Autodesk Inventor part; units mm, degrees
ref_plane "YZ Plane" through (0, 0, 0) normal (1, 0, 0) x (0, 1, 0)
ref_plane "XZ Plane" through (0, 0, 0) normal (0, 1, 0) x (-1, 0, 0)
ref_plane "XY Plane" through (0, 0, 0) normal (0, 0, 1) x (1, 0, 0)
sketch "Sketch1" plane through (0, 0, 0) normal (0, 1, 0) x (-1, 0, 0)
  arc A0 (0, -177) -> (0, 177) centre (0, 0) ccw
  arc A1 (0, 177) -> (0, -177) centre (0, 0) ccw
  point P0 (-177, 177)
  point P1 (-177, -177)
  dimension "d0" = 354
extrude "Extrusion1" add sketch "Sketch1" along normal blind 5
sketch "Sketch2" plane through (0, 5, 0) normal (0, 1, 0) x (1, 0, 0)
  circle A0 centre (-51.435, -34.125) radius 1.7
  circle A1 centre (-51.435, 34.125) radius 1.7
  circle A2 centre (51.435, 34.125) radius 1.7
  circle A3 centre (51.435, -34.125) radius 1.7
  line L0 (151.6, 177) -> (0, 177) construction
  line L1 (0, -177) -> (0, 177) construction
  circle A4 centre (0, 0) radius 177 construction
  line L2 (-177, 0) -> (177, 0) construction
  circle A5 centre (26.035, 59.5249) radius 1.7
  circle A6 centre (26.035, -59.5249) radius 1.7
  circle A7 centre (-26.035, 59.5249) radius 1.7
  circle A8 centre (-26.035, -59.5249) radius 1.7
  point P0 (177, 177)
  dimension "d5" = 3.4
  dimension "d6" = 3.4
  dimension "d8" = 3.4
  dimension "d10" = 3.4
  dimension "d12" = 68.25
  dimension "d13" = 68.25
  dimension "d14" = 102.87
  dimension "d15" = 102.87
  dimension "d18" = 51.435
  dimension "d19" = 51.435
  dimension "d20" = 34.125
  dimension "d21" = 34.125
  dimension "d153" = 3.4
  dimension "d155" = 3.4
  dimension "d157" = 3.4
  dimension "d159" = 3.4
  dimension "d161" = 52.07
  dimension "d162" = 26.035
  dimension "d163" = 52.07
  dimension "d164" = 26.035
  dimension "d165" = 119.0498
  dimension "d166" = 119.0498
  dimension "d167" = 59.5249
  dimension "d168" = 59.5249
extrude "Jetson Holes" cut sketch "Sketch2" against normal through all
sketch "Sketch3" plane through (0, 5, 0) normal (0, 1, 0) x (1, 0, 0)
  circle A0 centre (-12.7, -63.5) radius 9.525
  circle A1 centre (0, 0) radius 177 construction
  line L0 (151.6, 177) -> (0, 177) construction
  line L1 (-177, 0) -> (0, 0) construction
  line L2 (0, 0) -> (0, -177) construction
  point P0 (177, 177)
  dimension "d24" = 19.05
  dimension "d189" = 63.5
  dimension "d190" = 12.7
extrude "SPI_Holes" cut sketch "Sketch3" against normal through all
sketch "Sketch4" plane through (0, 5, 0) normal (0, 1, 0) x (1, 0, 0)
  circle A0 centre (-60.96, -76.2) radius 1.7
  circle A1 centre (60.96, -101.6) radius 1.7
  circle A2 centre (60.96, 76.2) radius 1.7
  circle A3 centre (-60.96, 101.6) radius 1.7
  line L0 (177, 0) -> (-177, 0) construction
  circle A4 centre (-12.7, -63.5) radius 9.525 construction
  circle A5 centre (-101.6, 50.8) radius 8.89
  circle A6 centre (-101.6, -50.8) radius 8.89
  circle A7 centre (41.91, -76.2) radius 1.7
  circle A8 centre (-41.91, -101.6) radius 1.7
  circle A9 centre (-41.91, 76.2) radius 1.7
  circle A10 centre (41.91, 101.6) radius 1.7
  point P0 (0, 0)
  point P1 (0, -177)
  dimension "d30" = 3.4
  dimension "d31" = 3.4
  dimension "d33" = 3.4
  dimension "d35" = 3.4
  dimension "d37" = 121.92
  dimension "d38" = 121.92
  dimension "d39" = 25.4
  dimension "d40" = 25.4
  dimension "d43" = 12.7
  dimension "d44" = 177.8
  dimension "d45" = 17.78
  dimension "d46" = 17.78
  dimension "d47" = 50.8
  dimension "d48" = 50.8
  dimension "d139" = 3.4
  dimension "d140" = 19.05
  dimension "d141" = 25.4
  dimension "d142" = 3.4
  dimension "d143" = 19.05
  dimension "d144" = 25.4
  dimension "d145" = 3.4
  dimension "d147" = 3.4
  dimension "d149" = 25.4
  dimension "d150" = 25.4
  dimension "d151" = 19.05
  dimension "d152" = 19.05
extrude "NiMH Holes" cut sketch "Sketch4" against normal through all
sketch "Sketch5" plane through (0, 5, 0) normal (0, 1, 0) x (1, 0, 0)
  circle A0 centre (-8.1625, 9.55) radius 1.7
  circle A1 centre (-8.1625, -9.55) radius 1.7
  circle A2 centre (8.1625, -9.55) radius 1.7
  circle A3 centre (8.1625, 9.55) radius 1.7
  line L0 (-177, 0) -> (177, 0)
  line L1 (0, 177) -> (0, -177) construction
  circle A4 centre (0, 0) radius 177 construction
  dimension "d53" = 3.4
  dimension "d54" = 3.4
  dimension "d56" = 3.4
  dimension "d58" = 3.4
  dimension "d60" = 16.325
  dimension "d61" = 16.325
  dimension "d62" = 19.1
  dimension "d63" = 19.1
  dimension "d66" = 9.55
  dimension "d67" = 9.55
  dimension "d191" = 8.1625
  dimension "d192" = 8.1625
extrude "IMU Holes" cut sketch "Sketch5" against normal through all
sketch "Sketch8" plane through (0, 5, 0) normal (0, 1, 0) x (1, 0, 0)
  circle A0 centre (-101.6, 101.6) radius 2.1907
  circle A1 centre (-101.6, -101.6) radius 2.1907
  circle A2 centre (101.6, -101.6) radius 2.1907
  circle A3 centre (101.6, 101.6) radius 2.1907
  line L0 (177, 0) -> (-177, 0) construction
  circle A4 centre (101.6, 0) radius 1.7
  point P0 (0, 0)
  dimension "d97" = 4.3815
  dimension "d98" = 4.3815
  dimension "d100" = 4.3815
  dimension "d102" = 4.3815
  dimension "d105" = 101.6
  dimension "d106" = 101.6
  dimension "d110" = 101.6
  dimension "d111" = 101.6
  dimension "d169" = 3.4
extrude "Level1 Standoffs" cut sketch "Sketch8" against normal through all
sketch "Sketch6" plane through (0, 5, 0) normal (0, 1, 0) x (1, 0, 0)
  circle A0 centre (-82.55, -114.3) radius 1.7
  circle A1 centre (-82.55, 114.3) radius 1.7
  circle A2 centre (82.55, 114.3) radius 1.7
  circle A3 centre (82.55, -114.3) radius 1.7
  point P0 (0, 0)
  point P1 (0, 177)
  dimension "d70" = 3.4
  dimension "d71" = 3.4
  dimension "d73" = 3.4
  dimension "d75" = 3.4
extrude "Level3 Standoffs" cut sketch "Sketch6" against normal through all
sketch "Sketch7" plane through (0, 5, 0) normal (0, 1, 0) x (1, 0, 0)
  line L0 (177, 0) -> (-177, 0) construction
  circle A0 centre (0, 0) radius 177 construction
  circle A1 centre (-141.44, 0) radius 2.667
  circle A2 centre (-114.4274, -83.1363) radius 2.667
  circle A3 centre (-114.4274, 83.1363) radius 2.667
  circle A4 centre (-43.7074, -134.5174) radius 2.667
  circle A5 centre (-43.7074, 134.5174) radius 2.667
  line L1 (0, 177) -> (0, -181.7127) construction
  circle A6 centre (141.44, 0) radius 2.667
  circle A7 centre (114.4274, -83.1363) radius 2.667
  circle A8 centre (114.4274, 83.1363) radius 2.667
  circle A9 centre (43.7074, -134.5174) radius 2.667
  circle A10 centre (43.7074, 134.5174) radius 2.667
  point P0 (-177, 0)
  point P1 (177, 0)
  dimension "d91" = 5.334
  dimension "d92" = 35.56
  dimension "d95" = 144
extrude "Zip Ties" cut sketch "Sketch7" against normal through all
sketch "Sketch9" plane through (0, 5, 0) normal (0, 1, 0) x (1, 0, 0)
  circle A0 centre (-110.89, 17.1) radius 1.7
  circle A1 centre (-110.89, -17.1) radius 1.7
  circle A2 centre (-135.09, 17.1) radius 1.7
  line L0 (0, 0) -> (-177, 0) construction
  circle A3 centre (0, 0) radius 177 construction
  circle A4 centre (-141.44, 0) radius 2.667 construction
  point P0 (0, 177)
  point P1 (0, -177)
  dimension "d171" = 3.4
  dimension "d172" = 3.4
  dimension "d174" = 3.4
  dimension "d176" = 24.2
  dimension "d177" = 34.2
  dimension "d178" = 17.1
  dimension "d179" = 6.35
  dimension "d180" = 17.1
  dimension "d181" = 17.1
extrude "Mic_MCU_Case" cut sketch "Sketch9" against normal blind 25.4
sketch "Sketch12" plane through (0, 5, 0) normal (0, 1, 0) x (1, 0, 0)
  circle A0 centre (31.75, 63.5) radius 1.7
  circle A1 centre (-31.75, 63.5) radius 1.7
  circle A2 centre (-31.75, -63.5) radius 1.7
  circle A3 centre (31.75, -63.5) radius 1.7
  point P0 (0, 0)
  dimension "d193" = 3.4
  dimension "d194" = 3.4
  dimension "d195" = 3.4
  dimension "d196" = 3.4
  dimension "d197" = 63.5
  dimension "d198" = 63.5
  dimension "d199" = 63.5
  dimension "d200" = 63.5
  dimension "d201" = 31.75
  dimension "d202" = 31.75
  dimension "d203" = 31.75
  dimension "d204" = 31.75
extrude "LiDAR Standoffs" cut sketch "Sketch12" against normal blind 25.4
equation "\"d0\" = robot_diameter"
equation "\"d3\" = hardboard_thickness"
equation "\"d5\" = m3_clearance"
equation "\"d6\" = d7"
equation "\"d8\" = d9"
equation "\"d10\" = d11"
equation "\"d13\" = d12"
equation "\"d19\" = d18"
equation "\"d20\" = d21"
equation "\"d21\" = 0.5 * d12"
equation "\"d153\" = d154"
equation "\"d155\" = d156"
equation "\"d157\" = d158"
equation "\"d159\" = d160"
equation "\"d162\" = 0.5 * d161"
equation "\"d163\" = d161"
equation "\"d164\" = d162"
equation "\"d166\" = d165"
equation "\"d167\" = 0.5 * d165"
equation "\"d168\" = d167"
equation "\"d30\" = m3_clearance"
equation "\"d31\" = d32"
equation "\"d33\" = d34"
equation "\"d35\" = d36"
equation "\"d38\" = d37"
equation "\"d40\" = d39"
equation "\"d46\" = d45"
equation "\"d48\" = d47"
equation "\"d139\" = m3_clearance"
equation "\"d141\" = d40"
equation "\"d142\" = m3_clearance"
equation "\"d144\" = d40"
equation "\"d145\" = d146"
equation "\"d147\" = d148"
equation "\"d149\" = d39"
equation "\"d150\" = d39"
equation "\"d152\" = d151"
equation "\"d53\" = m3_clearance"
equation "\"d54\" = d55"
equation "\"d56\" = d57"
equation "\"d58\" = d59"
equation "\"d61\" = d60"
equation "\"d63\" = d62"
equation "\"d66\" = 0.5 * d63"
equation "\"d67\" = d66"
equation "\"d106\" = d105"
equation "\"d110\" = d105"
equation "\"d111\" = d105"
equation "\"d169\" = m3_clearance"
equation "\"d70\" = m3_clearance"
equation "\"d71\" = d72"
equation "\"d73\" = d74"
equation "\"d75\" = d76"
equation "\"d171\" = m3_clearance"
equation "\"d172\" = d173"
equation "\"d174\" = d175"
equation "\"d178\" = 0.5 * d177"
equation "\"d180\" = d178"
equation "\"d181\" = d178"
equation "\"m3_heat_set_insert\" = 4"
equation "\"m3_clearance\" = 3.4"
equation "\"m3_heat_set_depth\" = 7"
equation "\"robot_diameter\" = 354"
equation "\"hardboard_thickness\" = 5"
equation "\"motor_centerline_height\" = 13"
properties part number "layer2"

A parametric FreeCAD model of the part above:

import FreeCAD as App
import Part
import Sketcher

V = App.Vector
Q = App.Units.Quantity

doc = App.newDocument("Part")
body = doc.addObject("PartDesign::Body", "Body")

# Sketch on XZ plane
sketch1 = doc.addObject("Sketcher::SketchObject", "Sketch")
body.addObject(sketch1)
sketch1.AttachmentSupport = (doc.XZ_Plane, [""])
sketch1.MapMode = "FlatFace"
sketch1.addGeometry(Part.Circle(V(0, 0, 0), V(0, 0, 1), 177), False)
sketch1.addConstraint(Sketcher.Constraint("Coincident", 0, 3, -1, 1))
sketch1.addConstraint(Sketcher.Constraint("Diameter", 0, Q("13.937 in")))
pad1 = doc.addObject("PartDesign::Pad", "Pad")
body.addObject(pad1)
pad1.Profile = sketch1
pad1.Length = 5
pad1.Reversed = True

# Sketch on XZ plane
sketch2 = doc.addObject("Sketcher::SketchObject", "Sketch001")
body.addObject(sketch2)
sketch2.AttachmentSupport = (doc.XZ_Plane, [""])
sketch2.MapMode = "FlatFace"
sketch2.AttachmentOffset = App.Placement(V(0, 0, -5), App.Rotation())
sketch2.addGeometry(Part.Circle(V(-51.435, 34.125, 0), V(0, 0, 1), 1.7), False)
sketch2.addGeometry(Part.Circle(V(-51.435, -34.125, 0), V(0, 0, 1), 1.7), False)
sketch2.addGeometry(Part.Circle(V(51.435, -34.125, 0), V(0, 0, 1), 1.7), False)
sketch2.addGeometry(Part.Circle(V(51.435, 34.125, 0), V(0, 0, 1), 1.7), False)
sketch2.addGeometry(Part.Circle(V(26.035, -59.5249, 0), V(0, 0, 1), 1.7), False)
sketch2.addGeometry(Part.Circle(V(26.035, 59.5249, 0), V(0, 0, 1), 1.7), False)
sketch2.addGeometry(Part.Circle(V(-26.035, -59.5249, 0), V(0, 0, 1), 1.7), False)
sketch2.addGeometry(Part.Circle(V(-26.035, 59.5249, 0), V(0, 0, 1), 1.7), False)
sketch2.addConstraint(Sketcher.Constraint("Equal", 0, 1))
sketch2.addConstraint(Sketcher.Constraint("Equal", 1, 2))
sketch2.addConstraint(Sketcher.Constraint("Equal", 2, 3))
sketch2.addConstraint(Sketcher.Constraint("Equal", 3, 4))
sketch2.addConstraint(Sketcher.Constraint("Equal", 4, 5))
sketch2.addConstraint(Sketcher.Constraint("Equal", 5, 6))
sketch2.addConstraint(Sketcher.Constraint("Equal", 6, 7))
sketch2.addConstraint(Sketcher.Constraint("Symmetric", 0, 3, 2, 3, -1, 1))
sketch2.addConstraint(Sketcher.Constraint("Symmetric", 1, 3, 3, 3, -1, 1))
sketch2.addConstraint(Sketcher.Constraint("Symmetric", 5, 3, 6, 3, -1, 1))
sketch2.addConstraint(Sketcher.Constraint("Symmetric", 4, 3, 7, 3, -1, 1))
sketch2.addConstraint(Sketcher.Constraint("Symmetric", 1, 3, 2, 3, -2))
sketch2.addConstraint(Sketcher.Constraint("Symmetric", 4, 3, 6, 3, -2))
sketch2.addConstraint(Sketcher.Constraint("Diameter", 0, 3.4))
sketch2.addConstraint(Sketcher.Constraint("DistanceX", 1, 3, 2, 3, Q("4.05 in")))
sketch2.addConstraint(Sketcher.Constraint("DistanceX", 6, 3, 4, 3, Q("2.05 in")))
sketch2.addConstraint(Sketcher.Constraint("DistanceY", 1, 3, 0, 3, Q("2.687 in")))
sketch2.addConstraint(Sketcher.Constraint("DistanceY", 4, 3, 2, 3, Q("1 in")))
pocket1 = doc.addObject("PartDesign::Pocket", "Pocket")
body.addObject(pocket1)
pocket1.Profile = sketch2
pocket1.Type = "ThroughAll"
pocket1.Reversed = True

# Sketch on XZ plane
sketch3 = doc.addObject("Sketcher::SketchObject", "Sketch002")
body.addObject(sketch3)
sketch3.AttachmentSupport = (doc.XZ_Plane, [""])
sketch3.MapMode = "FlatFace"
sketch3.AttachmentOffset = App.Placement(V(0, 0, -5), App.Rotation())
sketch3.addGeometry(Part.Circle(V(-12.7, 63.5, 0), V(0, 0, 1), 9.525), False)
sketch3.addConstraint(Sketcher.Constraint("Diameter", 0, Q("0.75 in")))
sketch3.addConstraint(Sketcher.Constraint("DistanceX", 0, 3, -1, 1, Q("0.5 in")))
sketch3.addConstraint(Sketcher.Constraint("DistanceY", -1, 1, 0, 3, Q("2.5 in")))
pocket2 = doc.addObject("PartDesign::Pocket", "Pocket001")
body.addObject(pocket2)
pocket2.Profile = sketch3
pocket2.Type = "ThroughAll"
pocket2.Reversed = True

# Sketch on XZ plane
sketch4 = doc.addObject("Sketcher::SketchObject", "Sketch003")
body.addObject(sketch4)
sketch4.AttachmentSupport = (doc.XZ_Plane, [""])
sketch4.MapMode = "FlatFace"
sketch4.AttachmentOffset = App.Placement(V(0, 0, -5), App.Rotation())
sketch4.addGeometry(Part.Circle(V(-60.96, 76.2, 0), V(0, 0, 1), 1.7), False)
sketch4.addGeometry(Part.Circle(V(60.96, 101.6, 0), V(0, 0, 1), 1.7), False)
sketch4.addGeometry(Part.Circle(V(60.96, -76.2, 0), V(0, 0, 1), 1.7), False)
sketch4.addGeometry(Part.Circle(V(-60.96, -101.6, 0), V(0, 0, 1), 1.7), False)
sketch4.addGeometry(Part.Circle(V(-101.6, -50.8, 0), V(0, 0, 1), 8.89), False)
sketch4.addGeometry(Part.Circle(V(-101.6, 50.8, 0), V(0, 0, 1), 8.89), False)
sketch4.addGeometry(Part.Circle(V(41.91, 76.2, 0), V(0, 0, 1), 1.7), False)
sketch4.addGeometry(Part.Circle(V(-41.91, 101.6, 0), V(0, 0, 1), 1.7), False)
sketch4.addGeometry(Part.Circle(V(-41.91, -76.2, 0), V(0, 0, 1), 1.7), False)
sketch4.addGeometry(Part.Circle(V(41.91, -101.6, 0), V(0, 0, 1), 1.7), False)
sketch4.addConstraint(Sketcher.Constraint("Equal", 0, 1))
sketch4.addConstraint(Sketcher.Constraint("Equal", 1, 2))
sketch4.addConstraint(Sketcher.Constraint("Equal", 2, 3))
sketch4.addConstraint(Sketcher.Constraint("Equal", 4, 5))
sketch4.addConstraint(Sketcher.Constraint("Equal", 3, 6))
sketch4.addConstraint(Sketcher.Constraint("Equal", 6, 7))
sketch4.addConstraint(Sketcher.Constraint("Equal", 7, 8))
sketch4.addConstraint(Sketcher.Constraint("Equal", 8, 9))
sketch4.addConstraint(Sketcher.Constraint("Symmetric", 0, 3, 2, 3, -1, 1))
sketch4.addConstraint(Sketcher.Constraint("Symmetric", 1, 3, 3, 3, -1, 1))
sketch4.addConstraint(Sketcher.Constraint("Symmetric", 6, 3, 8, 3, -1, 1))
sketch4.addConstraint(Sketcher.Constraint("Symmetric", 7, 3, 9, 3, -1, 1))
sketch4.addConstraint(Sketcher.Constraint("Symmetric", 4, 3, 5, 3, -1))
sketch4.addConstraint(Sketcher.Constraint("Horizontal", 0, 3, 6, 3))
sketch4.addConstraint(Sketcher.Constraint("Horizontal", 1, 3, 7, 3))
sketch4.addConstraint(Sketcher.Constraint("Vertical", 1, 3, 2, 3))
sketch4.addConstraint(Sketcher.Constraint("Vertical", 7, 3, 8, 3))
sketch4.addConstraint(Sketcher.Constraint("Diameter", 4, Q("0.7 in")))
sketch4.addConstraint(Sketcher.Constraint("DistanceY", 4, 3, -1, 1, Q("2 in")))
sketch4.addConstraint(Sketcher.Constraint("DistanceY", 0, 3, 1, 3, Q("1 in")))
sketch4.addConstraint(Sketcher.Constraint("DistanceY", 2, 3, 1, 3, Q("7 in")))
sketch4.addConstraint(Sketcher.Constraint("DistanceX", 0, 3, 1, 3, Q("4.8 in")))
sketch4.addConstraint(Sketcher.Constraint("Diameter", 0, 3.4))
sketch4.addConstraint(Sketcher.Constraint("DistanceX", 6, 3, 1, 3, Q("0.75 in")))
sketch4.addConstraint(Sketcher.Constraint("DistanceX", 4, 3, -1, 1, Q("4 in")))
pocket3 = doc.addObject("PartDesign::Pocket", "Pocket002")
body.addObject(pocket3)
pocket3.Profile = sketch4
pocket3.Type = "ThroughAll"
pocket3.Reversed = True

# Sketch on XZ plane
sketch5 = doc.addObject("Sketcher::SketchObject", "Sketch004")
body.addObject(sketch5)
sketch5.AttachmentSupport = (doc.XZ_Plane, [""])
sketch5.MapMode = "FlatFace"
sketch5.AttachmentOffset = App.Placement(V(0, 0, -5), App.Rotation())
sketch5.addGeometry(Part.Circle(V(-8.1625, -9.55, 0), V(0, 0, 1), 1.7), False)
sketch5.addGeometry(Part.Circle(V(-8.1625, 9.55, 0), V(0, 0, 1), 1.7), False)
sketch5.addGeometry(Part.Circle(V(8.1625, 9.55, 0), V(0, 0, 1), 1.7), False)
sketch5.addGeometry(Part.Circle(V(8.1625, -9.55, 0), V(0, 0, 1), 1.7), False)
sketch5.addConstraint(Sketcher.Constraint("Equal", 0, 1))
sketch5.addConstraint(Sketcher.Constraint("Equal", 1, 2))
sketch5.addConstraint(Sketcher.Constraint("Equal", 2, 3))
sketch5.addConstraint(Sketcher.Constraint("Symmetric", 0, 3, 2, 3, -1, 1))
sketch5.addConstraint(Sketcher.Constraint("Symmetric", 1, 3, 3, 3, -1, 1))
sketch5.addConstraint(Sketcher.Constraint("Symmetric", 1, 3, 2, 3, -2))
sketch5.addConstraint(Sketcher.Constraint("Diameter", 0, 3.4))
sketch5.addConstraint(Sketcher.Constraint("DistanceX", 0, 3, -1, 1, 8.1625))
sketch5.addConstraint(Sketcher.Constraint("DistanceY", 0, 3, -1, 1, 9.55))
pocket4 = doc.addObject("PartDesign::Pocket", "Pocket003")
body.addObject(pocket4)
pocket4.Profile = sketch5
pocket4.Type = "ThroughAll"
pocket4.Reversed = True

# Sketch on XZ plane
sketch6 = doc.addObject("Sketcher::SketchObject", "Sketch005")
body.addObject(sketch6)
sketch6.AttachmentSupport = (doc.XZ_Plane, [""])
sketch6.MapMode = "FlatFace"
sketch6.AttachmentOffset = App.Placement(V(0, 0, -5), App.Rotation())
sketch6.addGeometry(Part.Circle(V(-101.6, -101.6, 0), V(0, 0, 1), 2.1907), False)
sketch6.addGeometry(Part.Circle(V(-101.6, 101.6, 0), V(0, 0, 1), 2.1907), False)
sketch6.addGeometry(Part.Circle(V(101.6, 101.6, 0), V(0, 0, 1), 2.1907), False)
sketch6.addGeometry(Part.Circle(V(101.6, -101.6, 0), V(0, 0, 1), 2.1907), False)
sketch6.addGeometry(Part.Circle(V(101.6, 0, 0), V(0, 0, 1), 1.7), False)
sketch6.addConstraint(Sketcher.Constraint("Equal", 0, 1))
sketch6.addConstraint(Sketcher.Constraint("Equal", 1, 2))
sketch6.addConstraint(Sketcher.Constraint("Equal", 2, 3))
sketch6.addConstraint(Sketcher.Constraint("Symmetric", 0, 3, 2, 3, -1, 1))
sketch6.addConstraint(Sketcher.Constraint("Symmetric", 1, 3, 3, 3, -1, 1))
sketch6.addConstraint(Sketcher.Constraint("Symmetric", 1, 3, 2, 3, -2))
sketch6.addConstraint(Sketcher.Constraint("PointOnObject", 4, 3, -1))
sketch6.addConstraint(Sketcher.Constraint("Vertical", 3, 3, 4, 3))
sketch6.addConstraint(Sketcher.Constraint("DistanceX", 0, 3, -1, 1, Q("4 in")))
sketch6.addConstraint(Sketcher.Constraint("DistanceY", 0, 3, -1, 1, Q("4 in")))
sketch6.addConstraint(Sketcher.Constraint("Diameter", 0, Q("0.1725 in")))
sketch6.addConstraint(Sketcher.Constraint("Diameter", 4, 3.4))
pocket5 = doc.addObject("PartDesign::Pocket", "Pocket004")
body.addObject(pocket5)
pocket5.Profile = sketch6
pocket5.Type = "ThroughAll"
pocket5.Reversed = True

# Sketch on XZ plane
sketch7 = doc.addObject("Sketcher::SketchObject", "Sketch006")
body.addObject(sketch7)
sketch7.AttachmentSupport = (doc.XZ_Plane, [""])
sketch7.MapMode = "FlatFace"
sketch7.AttachmentOffset = App.Placement(V(0, 0, -5), App.Rotation())
sketch7.addGeometry(Part.Circle(V(-82.55, 114.3, 0), V(0, 0, 1), 1.7), False)
sketch7.addGeometry(Part.Circle(V(-82.55, -114.3, 0), V(0, 0, 1), 1.7), False)
sketch7.addGeometry(Part.Circle(V(82.55, -114.3, 0), V(0, 0, 1), 1.7), False)
sketch7.addGeometry(Part.Circle(V(82.55, 114.3, 0), V(0, 0, 1), 1.7), False)
sketch7.addConstraint(Sketcher.Constraint("Equal", 0, 1))
sketch7.addConstraint(Sketcher.Constraint("Equal", 1, 2))
sketch7.addConstraint(Sketcher.Constraint("Equal", 2, 3))
sketch7.addConstraint(Sketcher.Constraint("Symmetric", 0, 3, 2, 3, -1, 1))
sketch7.addConstraint(Sketcher.Constraint("Symmetric", 1, 3, 3, 3, -1, 1))
sketch7.addConstraint(Sketcher.Constraint("Symmetric", 1, 3, 2, 3, -2))
sketch7.addConstraint(Sketcher.Constraint("Diameter", 0, 3.4))
sketch7.addConstraint(Sketcher.Constraint("DistanceY", 1, 3, 0, 3, Q("9 in")))
sketch7.addConstraint(Sketcher.Constraint("DistanceX", 1, 3, 2, 3, Q("6.5 in")))
pocket6 = doc.addObject("PartDesign::Pocket", "Pocket005")
body.addObject(pocket6)
pocket6.Profile = sketch7
pocket6.Type = "ThroughAll"
pocket6.Reversed = True

# Sketch on XZ plane
sketch8 = doc.addObject("Sketcher::SketchObject", "Sketch007")
body.addObject(sketch8)
sketch8.AttachmentSupport = (doc.XZ_Plane, [""])
sketch8.MapMode = "FlatFace"
sketch8.AttachmentOffset = App.Placement(V(0, 0, -5), App.Rotation())
sketch8.addGeometry(Part.Circle(V(-141.44, 0, 0), V(0, 0, 1), 2.667), False)
sketch8.addGeometry(Part.Circle(V(-114.4274, 83.1363, 0), V(0, 0, 1), 2.667), False)
sketch8.addGeometry(Part.Circle(V(-114.4274, -83.1363, 0), V(0, 0, 1), 2.667), False)
sketch8.addGeometry(Part.Circle(V(-43.7074, 134.5174, 0), V(0, 0, 1), 2.667), False)
sketch8.addGeometry(Part.Circle(V(-43.7074, -134.5174, 0), V(0, 0, 1), 2.667), False)
sketch8.addGeometry(Part.Circle(V(141.44, 0, 0), V(0, 0, 1), 2.667), False)
sketch8.addGeometry(Part.Circle(V(114.4274, 83.1363, 0), V(0, 0, 1), 2.667), False)
sketch8.addGeometry(Part.Circle(V(114.4274, -83.1363, 0), V(0, 0, 1), 2.667), False)
sketch8.addGeometry(Part.Circle(V(43.7074, 134.5174, 0), V(0, 0, 1), 2.667), False)
sketch8.addGeometry(Part.Circle(V(43.7074, -134.5174, 0), V(0, 0, 1), 2.667), False)
sketch8.addConstraint(Sketcher.Constraint("Equal", 0, 1))
sketch8.addConstraint(Sketcher.Constraint("Equal", 1, 2))
sketch8.addConstraint(Sketcher.Constraint("Equal", 2, 3))
sketch8.addConstraint(Sketcher.Constraint("Equal", 3, 4))
sketch8.addConstraint(Sketcher.Constraint("Equal", 4, 5))
sketch8.addConstraint(Sketcher.Constraint("Equal", 5, 6))
sketch8.addConstraint(Sketcher.Constraint("Equal", 6, 7))
sketch8.addConstraint(Sketcher.Constraint("Equal", 7, 8))
sketch8.addConstraint(Sketcher.Constraint("Equal", 8, 9))
sketch8.addConstraint(Sketcher.Constraint("Symmetric", 0, 3, 5, 3, -1, 1))
sketch8.addConstraint(Sketcher.Constraint("Symmetric", 2, 3, 6, 3, -1, 1))
sketch8.addConstraint(Sketcher.Constraint("Symmetric", 1, 3, 7, 3, -1, 1))
sketch8.addConstraint(Sketcher.Constraint("Symmetric", 4, 3, 8, 3, -1, 1))
sketch8.addConstraint(Sketcher.Constraint("Symmetric", 3, 3, 9, 3, -1, 1))
sketch8.addConstraint(Sketcher.Constraint("Symmetric", 1, 3, 6, 3, -2))
sketch8.addConstraint(Sketcher.Constraint("Symmetric", 3, 3, 8, 3, -2))
sketch8.addConstraint(Sketcher.Constraint("PointOnObject", 0, 3, -1))
sketch8.addConstraint(Sketcher.Constraint("Diameter", 0, Q("0.21 in")))
sketch8.addConstraint(Sketcher.Constraint("DistanceX", 0, 3, 5, 3, Q("11.137 in")))
sketch8.addConstraint(Sketcher.Constraint("DistanceX", 0, 3, 1, 3, Q("1.0635 in")))
sketch8.addConstraint(Sketcher.Constraint("DistanceY", -1, 1, 1, 3, 83.1363))
sketch8.addConstraint(Sketcher.Constraint("DistanceX", 3, 3, -1, 1, 43.7074))
sketch8.addConstraint(Sketcher.Constraint("DistanceY", -1, 1, 3, 3, 134.5174))
pocket7 = doc.addObject("PartDesign::Pocket", "Pocket006")
body.addObject(pocket7)
pocket7.Profile = sketch8
pocket7.Type = "ThroughAll"
pocket7.Reversed = True

# Sketch on XZ plane
sketch9 = doc.addObject("Sketcher::SketchObject", "Sketch008")
body.addObject(sketch9)
sketch9.AttachmentSupport = (doc.XZ_Plane, [""])
sketch9.MapMode = "FlatFace"
sketch9.AttachmentOffset = App.Placement(V(0, 0, -5), App.Rotation())
sketch9.addGeometry(Part.Circle(V(-110.89, -17.1, 0), V(0, 0, 1), 1.7), False)
sketch9.addGeometry(Part.Circle(V(-110.89, 17.1, 0), V(0, 0, 1), 1.7), False)
sketch9.addGeometry(Part.Circle(V(-135.09, -17.1, 0), V(0, 0, 1), 1.7), False)
sketch9.addConstraint(Sketcher.Constraint("Equal", 0, 1))
sketch9.addConstraint(Sketcher.Constraint("Equal", 1, 2))
sketch9.addConstraint(Sketcher.Constraint("Symmetric", 0, 3, 1, 3, -1))
sketch9.addConstraint(Sketcher.Constraint("Horizontal", 0, 3, 2, 3))
sketch9.addConstraint(Sketcher.Constraint("Diameter", 0, 3.4))
sketch9.addConstraint(Sketcher.Constraint("DistanceY", 0, 3, -1, 1, 17.1))
sketch9.addConstraint(Sketcher.Constraint("DistanceX", 2, 3, 0, 3, 24.2))
sketch9.addConstraint(Sketcher.Constraint("DistanceX", 2, 3, -1, 1, Q("5.3185 in")))
pocket8 = doc.addObject("PartDesign::Pocket", "Pocket007")
body.addObject(pocket8)
pocket8.Profile = sketch9
pocket8.Length = Q("1 in")
pocket8.Reversed = True

# Sketch on XZ plane
sketch10 = doc.addObject("Sketcher::SketchObject", "Sketch009")
body.addObject(sketch10)
sketch10.AttachmentSupport = (doc.XZ_Plane, [""])
sketch10.MapMode = "FlatFace"
sketch10.AttachmentOffset = App.Placement(V(0, 0, -5), App.Rotation())
sketch10.addGeometry(Part.Circle(V(31.75, -63.5, 0), V(0, 0, 1), 1.7), False)
sketch10.addGeometry(Part.Circle(V(-31.75, -63.5, 0), V(0, 0, 1), 1.7), False)
sketch10.addGeometry(Part.Circle(V(-31.75, 63.5, 0), V(0, 0, 1), 1.7), False)
sketch10.addGeometry(Part.Circle(V(31.75, 63.5, 0), V(0, 0, 1), 1.7), False)
sketch10.addConstraint(Sketcher.Constraint("Equal", 0, 1))
sketch10.addConstraint(Sketcher.Constraint("Equal", 1, 2))
sketch10.addConstraint(Sketcher.Constraint("Equal", 2, 3))
sketch10.addConstraint(Sketcher.Constraint("Symmetric", 0, 3, 2, 3, -1, 1))
sketch10.addConstraint(Sketcher.Constraint("Symmetric", 1, 3, 3, 3, -1, 1))
sketch10.addConstraint(Sketcher.Constraint("Symmetric", 0, 3, 1, 3, -2))
sketch10.addConstraint(Sketcher.Constraint("DistanceY", 0, 3, -1, 1, Q("2.5 in")))
sketch10.addConstraint(Sketcher.Constraint("DistanceX", 1, 3, 0, 3, Q("2.5 in")))
sketch10.addConstraint(Sketcher.Constraint("Diameter", 0, 3.4))
pocket9 = doc.addObject("PartDesign::Pocket", "Pocket008")
body.addObject(pocket9)
pocket9.Profile = sketch10
pocket9.Length = Q("1 in")
pocket9.Reversed = True

doc.recompute()
